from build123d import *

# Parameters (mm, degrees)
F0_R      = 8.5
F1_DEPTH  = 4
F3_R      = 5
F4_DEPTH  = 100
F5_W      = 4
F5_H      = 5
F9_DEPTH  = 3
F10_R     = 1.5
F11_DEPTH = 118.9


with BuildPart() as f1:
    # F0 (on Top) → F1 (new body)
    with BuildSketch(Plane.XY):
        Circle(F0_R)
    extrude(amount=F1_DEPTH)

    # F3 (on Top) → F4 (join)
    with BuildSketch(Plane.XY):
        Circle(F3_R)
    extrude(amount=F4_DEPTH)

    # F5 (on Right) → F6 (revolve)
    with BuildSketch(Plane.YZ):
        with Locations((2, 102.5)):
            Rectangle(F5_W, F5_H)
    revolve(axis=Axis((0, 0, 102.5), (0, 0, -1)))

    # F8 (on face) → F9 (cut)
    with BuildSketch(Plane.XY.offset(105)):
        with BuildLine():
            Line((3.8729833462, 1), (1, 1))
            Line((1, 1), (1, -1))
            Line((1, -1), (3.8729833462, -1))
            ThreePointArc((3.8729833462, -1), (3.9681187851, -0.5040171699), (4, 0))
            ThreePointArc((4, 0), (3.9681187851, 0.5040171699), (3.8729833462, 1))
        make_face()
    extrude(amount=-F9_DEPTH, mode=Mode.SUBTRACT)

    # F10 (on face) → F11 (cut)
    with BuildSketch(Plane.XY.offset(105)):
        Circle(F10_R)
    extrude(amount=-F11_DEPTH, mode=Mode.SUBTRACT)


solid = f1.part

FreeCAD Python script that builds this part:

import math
import FreeCAD as App
import Part
import Sketcher
Q = App.Units.Quantity

doc = App.newDocument("Part")
body = doc.addObject("PartDesign::Body", "Body")

# Sketch on XY plane
sketch1 = doc.addObject("Sketcher::SketchObject", "Sketch")
body.addObject(sketch1)
sketch1.AttachmentSupport = (doc.XY_Plane, [""])
sketch1.MapMode = "FlatFace"
sketch1.addGeometry(Part.Circle(App.Vector(0, 0, 0), App.Vector(0, 0, 1), 8), False)
sketch1.addConstraint([
    Sketcher.Constraint("Coincident", 0, 3, -1, 1),
    Sketcher.Constraint("Diameter", 0, Q("17 mm")),
])
pad1 = doc.addObject("PartDesign::Pad", "Pad")
body.addObject(pad1)
pad1.Profile = sketch1
pad1.Length = 4

# Sketch on XY plane
sketch2 = doc.addObject("Sketcher::SketchObject", "Sketch001")
body.addObject(sketch2)
sketch2.AttachmentSupport = (doc.XY_Plane, [""])
sketch2.MapMode = "FlatFace"
sketch2.addGeometry(Part.Circle(App.Vector(0, 0, 0), App.Vector(0, 0, 1), 5), False)
sketch2.addConstraint([
    Sketcher.Constraint("Coincident", 0, 3, -1, 1),
    Sketcher.Constraint("Diameter", 0, Q("10 mm")),
])
pad2 = doc.addObject("PartDesign::Pad", "Pad001")
body.addObject(pad2)
pad2.Profile = sketch2
pad2.Length = 100

# Sketch on YZ plane
sketch3 = doc.addObject("Sketcher::SketchObject", "Sketch002")
body.addObject(sketch3)
sketch3.AttachmentSupport = (doc.YZ_Plane, [""])
sketch3.MapMode = "FlatFace"
sketch3.addGeometry([
    Part.LineSegment(App.Vector(0, 105, 0), App.Vector(0, 100, 0)),
    Part.LineSegment(App.Vector(0, 100, 0), App.Vector(4, 100, 0)),
    Part.LineSegment(App.Vector(4, 100, 0), App.Vector(4, 105, 0)),
    Part.LineSegment(App.Vector(4, 105, 0), App.Vector(0, 105, 0)),
], False)
sketch3.addConstraint([
    Sketcher.Constraint("Coincident", 0, 2, 1, 1),
    Sketcher.Constraint("Coincident", 1, 2, 2, 1),
    Sketcher.Constraint("Coincident", 2, 2, 3, 1),
    Sketcher.Constraint("Coincident", 3, 2, 0, 1),
    Sketcher.Constraint("Vertical", 0),
    Sketcher.Constraint("Horizontal", 1),
    Sketcher.Constraint("Vertical", 2),
    Sketcher.Constraint("Horizontal", 3),
    Sketcher.Constraint("PointOnObject", 0, 2, -2),
    Sketcher.Constraint("DistanceX", 1, 1, 1, 2, Q("4 mm")),
    Sketcher.Constraint("DistanceY", 0, 2, 0, 1, Q("5 mm")),
    Sketcher.Constraint("DistanceY", -1, 1, 0, 2, Q("100 mm")),
])
revolution = doc.addObject("PartDesign::Revolution", "Revolution")
body.addObject(revolution)
revolution.Profile = sketch3
revolution.ReferenceAxis = (sketch3, ["V_Axis"])
revolution.Angle = 360

# Sketch on XY plane
sketch4 = doc.addObject("Sketcher::SketchObject", "Sketch003")
body.addObject(sketch4)
sketch4.AttachmentSupport = (doc.XY_Plane, [""])
sketch4.MapMode = "FlatFace"
sketch4.AttachmentOffset = App.Placement(App.Vector(0, 0, 105), App.Rotation())
sketch4.addGeometry([
    Part.LineSegment(App.Vector(3.9, 1, 0), App.Vector(1, 1, 0)),  # 0
    Part.LineSegment(App.Vector(1, 1, 0), App.Vector(1, -1, 0)),  # 1
    Part.LineSegment(App.Vector(1, -1, 0), App.Vector(3.9, -1, 0)),  # 2
    Part.ArcOfCircle(Part.Circle(App.Vector(0, 0, 0), App.Vector(0, 0, 1), 4), math.radians(-14.48), math.radians(0)),  # 3
    Part.ArcOfCircle(Part.Circle(App.Vector(0, 0, 0), App.Vector(0, 0, 1), 4), math.radians(0), math.radians(14.48)),  # 4
], False)
sketch4.addConstraint([
    Sketcher.Constraint("Coincident", 0, 2, 1, 1),
    Sketcher.Constraint("Coincident", 1, 2, 2, 1),
    Sketcher.Constraint("Coincident", 2, 2, 3, 1),
    Sketcher.Constraint("Tangent", 3, 2, 4, 1),
    Sketcher.Constraint("Coincident", 4, 2, 0, 1),
    Sketcher.Constraint("Horizontal", 0),
    Sketcher.Constraint("Vertical", 1),
    Sketcher.Constraint("Horizontal", 2),
    Sketcher.Constraint("Coincident", 3, 3, -1, 1),
    Sketcher.Constraint("Equal", 3, 4),
    Sketcher.Constraint("PointOnObject", 3, 2, -1),
    Sketcher.Constraint("Vertical", 2, 2, 4, 2),
    Sketcher.Constraint("Radius", 3, Q("4 mm")),
    Sketcher.Constraint("DistanceY", 1, 2, 1, 1, Q("2 mm")),
    Sketcher.Constraint("DistanceX", -1, 1, 0, 2, Q("1 mm")),
])
pocket1 = doc.addObject("PartDesign::Pocket", "Pocket")
body.addObject(pocket1)
pocket1.Profile = sketch4
pocket1.Length = 3

# Sketch on XY plane
sketch5 = doc.addObject("Sketcher::SketchObject", "Sketch004")
body.addObject(sketch5)
sketch5.AttachmentSupport = (doc.XY_Plane, [""])
sketch5.MapMode = "FlatFace"
sketch5.AttachmentOffset = App.Placement(App.Vector(0, 0, 105), App.Rotation())
sketch5.addGeometry(Part.Circle(App.Vector(0, 0, 0), App.Vector(0, 0, 1), 1.5), False)
sketch5.addConstraint([
    Sketcher.Constraint("Coincident", 0, 3, -1, 1),
    Sketcher.Constraint("Diameter", 0, Q("3 mm")),
])
pocket2 = doc.addObject("PartDesign::Pocket", "Pocket001")
body.addObject(pocket2)
pocket2.Profile = sketch5
pocket2.Length = 118.9

doc.recompute()
